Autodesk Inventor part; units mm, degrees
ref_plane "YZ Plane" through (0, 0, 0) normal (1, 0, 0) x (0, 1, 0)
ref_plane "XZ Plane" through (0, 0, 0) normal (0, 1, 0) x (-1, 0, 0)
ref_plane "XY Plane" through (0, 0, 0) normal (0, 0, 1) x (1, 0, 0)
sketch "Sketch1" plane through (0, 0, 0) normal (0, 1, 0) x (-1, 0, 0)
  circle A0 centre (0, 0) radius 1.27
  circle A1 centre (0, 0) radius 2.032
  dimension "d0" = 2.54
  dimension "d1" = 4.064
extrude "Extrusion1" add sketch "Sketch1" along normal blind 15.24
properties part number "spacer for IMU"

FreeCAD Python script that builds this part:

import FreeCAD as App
import Part
import Sketcher
Q = App.Units.Quantity

doc = App.newDocument("Part")
params = doc.addObject("Spreadsheet::Sheet", "Params")
for row, (alias, value) in enumerate([
    ("sketch1_diameter", "0.1 in"),
    ("sketch1_diameter2", "0.16 in"),
    ("pad1_length", "0.6 in"),
], start=1):
    params.set(f"A{row}", alias)
    params.set(f"B{row}", "=" + value)
    params.setAlias(f"B{row}", alias)

body = doc.addObject("PartDesign::Body", "Body")

# Sketch on XZ plane
sketch1 = doc.addObject("Sketcher::SketchObject", "Sketch")
body.addObject(sketch1)
sketch1.AttachmentSupport = (doc.XZ_Plane, [""])
sketch1.MapMode = "FlatFace"
sketch1.addGeometry([
    Part.Circle(App.Vector(0, 0, 0), App.Vector(0, 0, 1), 2),
    Part.Circle(App.Vector(0, 0, 0), App.Vector(0, 0, 1), 1.3),
], False)
sketch1.addConstraint([
    Sketcher.Constraint("Coincident", 0, 3, -1, 1),
    Sketcher.Constraint("Coincident", 1, 3, -1, 1),
    Sketcher.Constraint("Diameter", 1, Q("0.1 in")),
    Sketcher.Constraint("Diameter", 0, Q("0.16 in")),
])
sketch1.setExpression("Constraints[2]", "Params.sketch1_diameter")
sketch1.setExpression("Constraints[3]", "Params.sketch1_diameter2")
pad1 = doc.addObject("PartDesign::Pad", "Pad")
body.addObject(pad1)
pad1.Profile = sketch1
pad1.setExpression("Length", "Params.pad1_length")
pad1.Reversed = True

doc.recompute()
